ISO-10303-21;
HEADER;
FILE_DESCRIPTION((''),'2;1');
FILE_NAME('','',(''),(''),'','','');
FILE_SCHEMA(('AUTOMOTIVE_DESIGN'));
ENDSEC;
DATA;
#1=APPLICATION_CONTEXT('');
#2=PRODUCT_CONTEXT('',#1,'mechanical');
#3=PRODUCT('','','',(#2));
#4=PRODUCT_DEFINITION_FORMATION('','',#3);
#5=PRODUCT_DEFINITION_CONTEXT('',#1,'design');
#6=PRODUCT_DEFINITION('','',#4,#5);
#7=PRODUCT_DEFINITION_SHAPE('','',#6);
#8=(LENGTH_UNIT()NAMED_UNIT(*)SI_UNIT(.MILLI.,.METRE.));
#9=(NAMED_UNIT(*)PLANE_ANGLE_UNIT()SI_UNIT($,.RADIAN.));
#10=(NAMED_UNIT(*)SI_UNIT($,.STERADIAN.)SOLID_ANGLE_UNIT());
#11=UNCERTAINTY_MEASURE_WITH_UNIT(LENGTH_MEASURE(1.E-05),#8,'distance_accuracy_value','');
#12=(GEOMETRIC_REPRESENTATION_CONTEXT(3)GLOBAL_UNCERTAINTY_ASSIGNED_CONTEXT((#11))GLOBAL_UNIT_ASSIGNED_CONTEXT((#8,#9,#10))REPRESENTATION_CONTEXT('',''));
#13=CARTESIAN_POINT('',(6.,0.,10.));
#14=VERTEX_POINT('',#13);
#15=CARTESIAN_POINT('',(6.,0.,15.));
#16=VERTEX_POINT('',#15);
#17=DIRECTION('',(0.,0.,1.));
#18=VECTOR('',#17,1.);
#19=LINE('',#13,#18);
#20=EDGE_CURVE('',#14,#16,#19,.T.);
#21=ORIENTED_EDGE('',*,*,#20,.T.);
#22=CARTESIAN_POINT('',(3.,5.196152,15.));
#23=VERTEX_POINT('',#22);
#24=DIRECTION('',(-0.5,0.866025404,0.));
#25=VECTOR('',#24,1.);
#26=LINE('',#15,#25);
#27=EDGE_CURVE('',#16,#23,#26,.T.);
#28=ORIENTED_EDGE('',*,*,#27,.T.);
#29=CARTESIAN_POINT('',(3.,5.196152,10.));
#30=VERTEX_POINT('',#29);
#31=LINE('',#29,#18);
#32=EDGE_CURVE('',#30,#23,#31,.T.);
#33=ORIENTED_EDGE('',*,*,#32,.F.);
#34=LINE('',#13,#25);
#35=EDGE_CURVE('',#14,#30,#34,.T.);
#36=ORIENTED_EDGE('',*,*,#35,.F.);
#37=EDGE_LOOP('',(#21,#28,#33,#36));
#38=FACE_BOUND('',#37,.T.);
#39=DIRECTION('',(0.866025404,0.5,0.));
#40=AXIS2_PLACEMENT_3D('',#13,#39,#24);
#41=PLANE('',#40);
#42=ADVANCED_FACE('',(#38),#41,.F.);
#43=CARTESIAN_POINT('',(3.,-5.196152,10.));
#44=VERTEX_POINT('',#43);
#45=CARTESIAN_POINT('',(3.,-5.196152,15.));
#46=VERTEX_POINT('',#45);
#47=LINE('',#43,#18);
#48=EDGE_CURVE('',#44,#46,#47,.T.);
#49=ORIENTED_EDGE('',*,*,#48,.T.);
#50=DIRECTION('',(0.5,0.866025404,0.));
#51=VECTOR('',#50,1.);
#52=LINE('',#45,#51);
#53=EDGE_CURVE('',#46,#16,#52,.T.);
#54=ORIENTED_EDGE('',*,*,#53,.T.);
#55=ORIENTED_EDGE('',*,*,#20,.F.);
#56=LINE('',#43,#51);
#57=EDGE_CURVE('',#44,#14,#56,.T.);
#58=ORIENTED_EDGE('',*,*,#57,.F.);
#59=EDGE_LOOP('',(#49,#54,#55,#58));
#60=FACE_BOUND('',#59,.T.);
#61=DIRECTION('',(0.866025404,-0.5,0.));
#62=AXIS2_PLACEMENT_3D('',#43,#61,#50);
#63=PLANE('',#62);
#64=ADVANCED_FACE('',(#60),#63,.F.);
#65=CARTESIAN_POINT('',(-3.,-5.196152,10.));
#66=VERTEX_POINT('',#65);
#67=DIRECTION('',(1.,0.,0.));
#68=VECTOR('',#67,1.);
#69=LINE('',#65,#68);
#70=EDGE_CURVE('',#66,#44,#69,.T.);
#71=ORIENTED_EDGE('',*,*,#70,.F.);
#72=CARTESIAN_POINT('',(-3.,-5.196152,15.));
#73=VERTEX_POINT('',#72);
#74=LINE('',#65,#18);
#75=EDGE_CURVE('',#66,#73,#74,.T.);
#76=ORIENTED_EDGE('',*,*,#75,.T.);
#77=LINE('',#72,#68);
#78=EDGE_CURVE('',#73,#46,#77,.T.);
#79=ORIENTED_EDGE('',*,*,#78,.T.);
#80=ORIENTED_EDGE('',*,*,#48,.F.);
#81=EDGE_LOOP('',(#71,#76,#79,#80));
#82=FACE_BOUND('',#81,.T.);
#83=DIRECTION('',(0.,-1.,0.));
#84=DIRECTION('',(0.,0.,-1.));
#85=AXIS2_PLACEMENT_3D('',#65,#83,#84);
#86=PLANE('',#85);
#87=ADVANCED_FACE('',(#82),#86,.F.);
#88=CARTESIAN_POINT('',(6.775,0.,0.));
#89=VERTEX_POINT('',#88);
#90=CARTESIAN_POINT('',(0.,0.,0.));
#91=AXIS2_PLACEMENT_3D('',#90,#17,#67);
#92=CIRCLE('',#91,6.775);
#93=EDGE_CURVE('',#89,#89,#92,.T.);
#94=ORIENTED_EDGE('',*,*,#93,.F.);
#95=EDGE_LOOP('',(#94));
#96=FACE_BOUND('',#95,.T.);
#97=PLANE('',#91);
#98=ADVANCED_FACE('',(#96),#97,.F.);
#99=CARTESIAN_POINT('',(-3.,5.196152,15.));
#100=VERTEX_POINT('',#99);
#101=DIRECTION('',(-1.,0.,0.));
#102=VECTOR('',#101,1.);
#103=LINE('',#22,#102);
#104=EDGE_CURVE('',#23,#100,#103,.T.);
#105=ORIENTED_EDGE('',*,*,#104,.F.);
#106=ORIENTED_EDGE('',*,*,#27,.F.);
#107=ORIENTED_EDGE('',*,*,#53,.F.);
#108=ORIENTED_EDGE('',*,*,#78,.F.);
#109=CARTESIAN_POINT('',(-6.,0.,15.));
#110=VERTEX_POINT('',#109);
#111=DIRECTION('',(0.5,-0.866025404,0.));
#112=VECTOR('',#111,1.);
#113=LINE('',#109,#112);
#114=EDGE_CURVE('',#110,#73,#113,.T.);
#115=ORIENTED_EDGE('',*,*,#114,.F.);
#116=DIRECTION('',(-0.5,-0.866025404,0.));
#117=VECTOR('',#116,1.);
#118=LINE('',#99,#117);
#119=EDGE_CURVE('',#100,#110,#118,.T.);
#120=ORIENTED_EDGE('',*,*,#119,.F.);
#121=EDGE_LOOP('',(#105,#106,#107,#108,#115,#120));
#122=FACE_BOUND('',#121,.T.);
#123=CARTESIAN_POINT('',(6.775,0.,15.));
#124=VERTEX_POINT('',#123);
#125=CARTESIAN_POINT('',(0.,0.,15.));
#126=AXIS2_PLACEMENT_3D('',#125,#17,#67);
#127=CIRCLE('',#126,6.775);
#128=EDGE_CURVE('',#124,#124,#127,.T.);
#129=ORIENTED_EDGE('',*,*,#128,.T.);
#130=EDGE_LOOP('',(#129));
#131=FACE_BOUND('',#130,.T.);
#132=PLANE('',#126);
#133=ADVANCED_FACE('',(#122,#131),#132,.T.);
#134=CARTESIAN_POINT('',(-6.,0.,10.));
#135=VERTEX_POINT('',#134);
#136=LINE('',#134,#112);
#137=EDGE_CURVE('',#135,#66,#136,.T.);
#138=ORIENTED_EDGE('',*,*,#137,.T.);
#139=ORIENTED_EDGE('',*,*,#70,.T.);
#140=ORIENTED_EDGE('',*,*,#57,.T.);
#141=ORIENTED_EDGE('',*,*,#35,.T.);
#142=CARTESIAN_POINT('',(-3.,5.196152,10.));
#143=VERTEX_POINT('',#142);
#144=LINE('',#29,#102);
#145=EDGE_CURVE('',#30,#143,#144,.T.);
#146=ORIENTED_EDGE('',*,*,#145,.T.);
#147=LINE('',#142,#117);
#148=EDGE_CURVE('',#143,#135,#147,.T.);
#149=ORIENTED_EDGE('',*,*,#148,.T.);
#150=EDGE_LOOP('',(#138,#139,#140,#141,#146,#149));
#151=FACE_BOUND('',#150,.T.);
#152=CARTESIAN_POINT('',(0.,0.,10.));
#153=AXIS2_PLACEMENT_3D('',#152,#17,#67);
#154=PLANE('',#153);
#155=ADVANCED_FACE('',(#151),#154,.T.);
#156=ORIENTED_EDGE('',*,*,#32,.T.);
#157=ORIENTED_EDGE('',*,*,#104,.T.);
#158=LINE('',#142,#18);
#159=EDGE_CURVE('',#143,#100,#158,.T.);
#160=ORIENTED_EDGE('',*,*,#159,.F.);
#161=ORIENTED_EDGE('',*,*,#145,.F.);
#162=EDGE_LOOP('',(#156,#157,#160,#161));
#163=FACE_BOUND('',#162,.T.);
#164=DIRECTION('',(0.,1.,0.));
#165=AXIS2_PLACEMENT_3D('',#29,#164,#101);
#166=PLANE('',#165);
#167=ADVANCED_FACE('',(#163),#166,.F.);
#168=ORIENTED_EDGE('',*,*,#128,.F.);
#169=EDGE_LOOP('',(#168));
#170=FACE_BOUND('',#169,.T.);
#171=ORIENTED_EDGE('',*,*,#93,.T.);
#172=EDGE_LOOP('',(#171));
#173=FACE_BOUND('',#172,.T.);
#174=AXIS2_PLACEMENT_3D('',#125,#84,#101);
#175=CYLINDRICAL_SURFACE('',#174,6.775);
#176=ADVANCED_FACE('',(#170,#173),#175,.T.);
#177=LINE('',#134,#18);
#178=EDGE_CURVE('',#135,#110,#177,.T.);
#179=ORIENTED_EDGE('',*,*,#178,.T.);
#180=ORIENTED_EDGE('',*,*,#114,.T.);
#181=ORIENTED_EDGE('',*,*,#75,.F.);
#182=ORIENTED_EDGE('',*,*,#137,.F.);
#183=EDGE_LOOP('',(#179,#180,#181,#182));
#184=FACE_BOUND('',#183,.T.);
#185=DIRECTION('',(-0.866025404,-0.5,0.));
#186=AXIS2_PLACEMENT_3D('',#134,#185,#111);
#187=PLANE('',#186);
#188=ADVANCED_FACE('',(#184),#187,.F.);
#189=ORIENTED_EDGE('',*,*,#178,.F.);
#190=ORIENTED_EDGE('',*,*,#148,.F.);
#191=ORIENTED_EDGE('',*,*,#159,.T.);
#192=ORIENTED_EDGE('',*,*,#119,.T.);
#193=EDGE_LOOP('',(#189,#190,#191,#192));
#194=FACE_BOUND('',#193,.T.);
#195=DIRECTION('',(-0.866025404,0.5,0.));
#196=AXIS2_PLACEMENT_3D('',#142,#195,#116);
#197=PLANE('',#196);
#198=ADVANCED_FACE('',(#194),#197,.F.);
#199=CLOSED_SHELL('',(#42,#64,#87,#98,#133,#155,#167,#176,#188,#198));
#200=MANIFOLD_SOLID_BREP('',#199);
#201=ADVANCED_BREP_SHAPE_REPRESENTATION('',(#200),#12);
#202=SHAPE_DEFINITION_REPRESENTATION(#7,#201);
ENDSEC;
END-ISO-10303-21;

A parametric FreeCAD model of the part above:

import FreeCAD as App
import Part
import Sketcher

V = App.Vector
Q = App.Units.Quantity

doc = App.newDocument("Part")
body = doc.addObject("PartDesign::Body", "Body")

# Sketch on XY plane
sketch1 = body.newObject("Sketcher::SketchObject", "Sketch")
sketch1.AttachmentSupport = (doc.getObject("XY_Plane"), [""])
sketch1.MapMode = "FlatFace"
sketch1.addGeometry(Part.Circle(V(0, 0, 0), V(0, 0, 1), 7), False)
sketch1.addConstraint(Sketcher.Constraint("Coincident", 0, 3, -1, 1))
sketch1.addConstraint(Sketcher.Constraint("Diameter", 0, Q("13.55 mm")))
pad1 = body.newObject("PartDesign::Pad", "Pad")
pad1.Profile = sketch1
pad1.Length = 15

# Sketch on XY plane
sketch2 = body.newObject("Sketcher::SketchObject", "Sketch001")
sketch2.AttachmentSupport = (doc.getObject("XY_Plane"), [""])
sketch2.MapMode = "FlatFace"
sketch2.AttachmentOffset = App.Placement(V(0, 0, 15), App.Rotation())
sketch2.addGeometry(Part.LineSegment(V(-3, -5, 0), V(3, -5, 0)), False)
sketch2.addGeometry(Part.LineSegment(V(3, -5, 0), V(6, 0, 0)), False)
sketch2.addGeometry(Part.LineSegment(V(6, 0, 0), V(3, 5, 0)), False)
sketch2.addGeometry(Part.LineSegment(V(3, 5, 0), V(-3, 5, 0)), False)
sketch2.addGeometry(Part.LineSegment(V(-3, 5, 0), V(-6, 0, 0)), False)
sketch2.addGeometry(Part.LineSegment(V(-6, 0, 0), V(-3, -5, 0)), False)
sketch2.addConstraint(Sketcher.Constraint("Coincident", 0, 2, 1, 1))
sketch2.addConstraint(Sketcher.Constraint("Coincident", 1, 2, 2, 1))
sketch2.addConstraint(Sketcher.Constraint("Coincident", 2, 2, 3, 1))
sketch2.addConstraint(Sketcher.Constraint("Coincident", 3, 2, 4, 1))
sketch2.addConstraint(Sketcher.Constraint("Coincident", 4, 2, 5, 1))
sketch2.addConstraint(Sketcher.Constraint("Coincident", 5, 2, 0, 1))
sketch2.addConstraint(Sketcher.Constraint("Horizontal", 0))
sketch2.addConstraint(Sketcher.Constraint("Horizontal", 3))
sketch2.addConstraint(Sketcher.Constraint("Symmetric", 0, 2, 3, 2, -1, 1))
sketch2.addConstraint(Sketcher.Constraint("Symmetric", 1, 2, 4, 2, -1, 1))
sketch2.addConstraint(Sketcher.Constraint("PointOnObject", 1, 2, -1))
sketch2.addConstraint(Sketcher.Constraint("Parallel", 2, 5))
sketch2.addConstraint(Sketcher.Constraint("Vertical", 0, 2, 2, 2))
sketch2.addConstraint(Sketcher.Constraint("DistanceX", 0, 1, 0, 2, Q("6 mm")))
sketch2.addConstraint(Sketcher.Constraint("Angle", 1, Q("60 deg")))
sketch2.addConstraint(Sketcher.Constraint("Distance", 1, Q("6 mm")))
pocket1 = body.newObject("PartDesign::Pocket", "Pocket")
pocket1.Profile = sketch2
pocket1.Length = 5

doc.recompute()
